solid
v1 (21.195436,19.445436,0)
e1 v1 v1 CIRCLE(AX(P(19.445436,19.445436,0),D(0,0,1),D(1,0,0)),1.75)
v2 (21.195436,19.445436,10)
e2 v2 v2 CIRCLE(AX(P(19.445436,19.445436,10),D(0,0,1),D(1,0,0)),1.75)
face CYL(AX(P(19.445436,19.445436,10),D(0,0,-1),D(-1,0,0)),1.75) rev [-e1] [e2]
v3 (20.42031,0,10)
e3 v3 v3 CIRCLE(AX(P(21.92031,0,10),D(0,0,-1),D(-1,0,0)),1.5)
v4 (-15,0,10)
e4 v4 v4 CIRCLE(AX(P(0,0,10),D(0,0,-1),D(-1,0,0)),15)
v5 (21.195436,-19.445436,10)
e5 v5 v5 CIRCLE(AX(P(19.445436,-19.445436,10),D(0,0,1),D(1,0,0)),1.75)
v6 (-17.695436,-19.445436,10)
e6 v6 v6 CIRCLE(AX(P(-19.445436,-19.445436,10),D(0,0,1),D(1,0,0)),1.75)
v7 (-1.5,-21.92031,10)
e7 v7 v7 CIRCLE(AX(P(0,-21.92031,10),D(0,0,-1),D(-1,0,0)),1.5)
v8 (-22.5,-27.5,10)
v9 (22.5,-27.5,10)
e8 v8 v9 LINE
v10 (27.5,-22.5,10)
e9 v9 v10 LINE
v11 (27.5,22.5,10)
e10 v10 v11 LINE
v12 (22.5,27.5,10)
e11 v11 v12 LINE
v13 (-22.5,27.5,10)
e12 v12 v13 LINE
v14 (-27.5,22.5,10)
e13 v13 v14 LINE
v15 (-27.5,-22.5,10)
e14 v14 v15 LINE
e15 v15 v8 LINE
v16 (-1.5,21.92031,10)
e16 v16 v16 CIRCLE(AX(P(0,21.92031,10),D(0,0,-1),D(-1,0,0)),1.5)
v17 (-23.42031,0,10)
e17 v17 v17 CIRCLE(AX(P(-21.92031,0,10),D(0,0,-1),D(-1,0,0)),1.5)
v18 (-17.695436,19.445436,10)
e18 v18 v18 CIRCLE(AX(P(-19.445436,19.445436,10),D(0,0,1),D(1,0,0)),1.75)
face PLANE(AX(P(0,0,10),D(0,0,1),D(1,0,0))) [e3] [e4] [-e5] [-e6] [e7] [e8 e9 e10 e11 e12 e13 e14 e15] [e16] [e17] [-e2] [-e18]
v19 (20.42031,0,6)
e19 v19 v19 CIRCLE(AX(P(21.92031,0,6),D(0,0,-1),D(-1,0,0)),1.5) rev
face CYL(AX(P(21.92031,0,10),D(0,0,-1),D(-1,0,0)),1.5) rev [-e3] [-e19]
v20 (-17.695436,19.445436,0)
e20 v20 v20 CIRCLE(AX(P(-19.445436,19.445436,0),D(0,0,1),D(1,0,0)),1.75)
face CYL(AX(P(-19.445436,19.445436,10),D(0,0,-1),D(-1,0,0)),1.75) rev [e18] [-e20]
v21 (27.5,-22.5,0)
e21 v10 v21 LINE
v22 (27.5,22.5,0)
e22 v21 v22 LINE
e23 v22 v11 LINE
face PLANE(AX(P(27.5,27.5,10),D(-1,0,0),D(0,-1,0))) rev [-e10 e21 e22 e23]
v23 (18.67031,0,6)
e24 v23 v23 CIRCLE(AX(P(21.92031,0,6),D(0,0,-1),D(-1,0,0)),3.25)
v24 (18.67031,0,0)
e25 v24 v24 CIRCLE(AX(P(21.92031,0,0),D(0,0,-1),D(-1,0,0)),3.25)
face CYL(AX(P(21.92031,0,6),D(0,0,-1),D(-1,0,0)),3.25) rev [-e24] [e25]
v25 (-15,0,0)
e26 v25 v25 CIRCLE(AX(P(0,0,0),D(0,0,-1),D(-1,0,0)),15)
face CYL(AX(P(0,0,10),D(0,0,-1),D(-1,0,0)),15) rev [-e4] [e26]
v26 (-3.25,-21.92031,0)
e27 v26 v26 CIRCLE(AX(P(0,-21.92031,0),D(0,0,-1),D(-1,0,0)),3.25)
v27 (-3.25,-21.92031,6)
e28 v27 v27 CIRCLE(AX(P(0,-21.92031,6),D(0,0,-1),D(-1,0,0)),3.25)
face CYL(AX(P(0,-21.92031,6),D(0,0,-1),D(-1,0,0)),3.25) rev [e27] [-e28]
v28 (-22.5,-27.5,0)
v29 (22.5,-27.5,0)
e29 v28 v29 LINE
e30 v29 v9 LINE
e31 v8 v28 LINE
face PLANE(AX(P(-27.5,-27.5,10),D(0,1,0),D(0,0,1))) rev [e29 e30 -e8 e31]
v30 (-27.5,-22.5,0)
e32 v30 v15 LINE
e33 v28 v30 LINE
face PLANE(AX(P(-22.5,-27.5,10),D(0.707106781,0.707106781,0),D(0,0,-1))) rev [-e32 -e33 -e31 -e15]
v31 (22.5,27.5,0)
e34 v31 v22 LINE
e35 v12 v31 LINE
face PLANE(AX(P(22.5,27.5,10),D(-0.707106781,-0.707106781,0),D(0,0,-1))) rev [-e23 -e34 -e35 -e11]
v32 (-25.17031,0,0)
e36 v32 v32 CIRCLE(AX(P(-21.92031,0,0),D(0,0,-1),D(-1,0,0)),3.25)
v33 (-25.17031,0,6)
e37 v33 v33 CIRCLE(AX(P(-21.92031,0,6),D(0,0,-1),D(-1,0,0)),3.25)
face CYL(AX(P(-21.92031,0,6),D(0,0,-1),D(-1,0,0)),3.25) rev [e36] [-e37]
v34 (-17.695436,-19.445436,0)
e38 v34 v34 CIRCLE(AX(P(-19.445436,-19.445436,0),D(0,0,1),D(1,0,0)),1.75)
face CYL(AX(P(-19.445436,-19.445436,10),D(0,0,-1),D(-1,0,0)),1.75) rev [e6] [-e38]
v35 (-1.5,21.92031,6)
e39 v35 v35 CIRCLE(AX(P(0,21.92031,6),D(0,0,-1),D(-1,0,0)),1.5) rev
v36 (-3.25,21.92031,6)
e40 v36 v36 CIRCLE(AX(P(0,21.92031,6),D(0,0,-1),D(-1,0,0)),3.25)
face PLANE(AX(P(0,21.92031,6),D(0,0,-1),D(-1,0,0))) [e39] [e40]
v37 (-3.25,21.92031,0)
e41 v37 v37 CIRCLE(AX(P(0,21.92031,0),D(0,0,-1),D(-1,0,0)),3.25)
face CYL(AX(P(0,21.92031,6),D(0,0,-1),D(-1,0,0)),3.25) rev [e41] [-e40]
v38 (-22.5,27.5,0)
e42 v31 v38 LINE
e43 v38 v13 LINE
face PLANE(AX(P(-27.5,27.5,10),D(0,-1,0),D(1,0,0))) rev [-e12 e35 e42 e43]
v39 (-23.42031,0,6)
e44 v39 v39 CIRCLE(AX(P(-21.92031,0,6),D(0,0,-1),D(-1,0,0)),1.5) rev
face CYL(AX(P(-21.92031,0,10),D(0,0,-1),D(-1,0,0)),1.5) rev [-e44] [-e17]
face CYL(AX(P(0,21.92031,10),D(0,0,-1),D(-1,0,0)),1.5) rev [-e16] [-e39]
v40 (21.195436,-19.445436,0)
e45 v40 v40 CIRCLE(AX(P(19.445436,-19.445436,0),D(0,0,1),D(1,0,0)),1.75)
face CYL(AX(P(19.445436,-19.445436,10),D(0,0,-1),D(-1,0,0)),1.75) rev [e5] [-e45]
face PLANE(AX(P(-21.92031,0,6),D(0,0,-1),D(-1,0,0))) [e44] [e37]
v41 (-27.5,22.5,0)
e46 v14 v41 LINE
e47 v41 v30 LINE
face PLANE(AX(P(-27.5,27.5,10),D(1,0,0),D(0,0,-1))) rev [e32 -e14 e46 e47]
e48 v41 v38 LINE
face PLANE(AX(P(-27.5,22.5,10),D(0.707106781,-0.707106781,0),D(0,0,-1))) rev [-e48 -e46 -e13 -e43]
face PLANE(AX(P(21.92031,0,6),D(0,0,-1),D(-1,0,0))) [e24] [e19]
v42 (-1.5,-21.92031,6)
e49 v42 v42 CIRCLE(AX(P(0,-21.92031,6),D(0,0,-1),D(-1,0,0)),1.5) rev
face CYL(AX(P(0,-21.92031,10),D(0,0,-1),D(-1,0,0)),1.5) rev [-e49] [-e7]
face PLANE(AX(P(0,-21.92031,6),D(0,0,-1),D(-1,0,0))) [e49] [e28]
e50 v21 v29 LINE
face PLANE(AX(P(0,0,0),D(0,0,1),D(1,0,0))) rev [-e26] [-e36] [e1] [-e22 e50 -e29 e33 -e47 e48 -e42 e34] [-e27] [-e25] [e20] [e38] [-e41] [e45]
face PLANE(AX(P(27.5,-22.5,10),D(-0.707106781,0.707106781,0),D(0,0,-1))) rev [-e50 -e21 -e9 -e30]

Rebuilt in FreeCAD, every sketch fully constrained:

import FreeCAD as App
import Part
import Sketcher

V = App.Vector


def edges_at(feature, points):
    """Names of the edges that pass closest to the given points."""
    edges = feature.Shape.Edges
    near = lambda p: min(range(len(edges)), key=lambda i: edges[i].distToShape(Part.Vertex(*p))[0])
    return sorted({f"Edge{near(p) + 1}" for p in points})


def add_polygon(sketch, points):
    """Adds a closed chain of lines whose ends are joined by coincident constraints."""
    first, n = sketch.GeometryCount, len(points)
    for a, b in zip(points, points[1:] + points[:1]):
        sketch.addGeometry(Part.LineSegment(App.Vector(*a, 0), App.Vector(*b, 0)), False)
    for i in range(n):
        sketch.addConstraint(Sketcher.Constraint("Coincident", first + i, 2, first + (i + 1) % n, 1))

doc = App.newDocument("Part")
body = doc.addObject("PartDesign::Body", "Body")

sketch1 = body.newObject("Sketcher::SketchObject", "Sketch")
sketch1.AttachmentSupport = (doc.getObject("XY_Plane"), [""])
sketch1.MapMode = "FlatFace"
add_polygon(sketch1, [(-27.5, 27.5), (-27.5, -27.5), (27.5, -27.5), (27.5, 27.5)])
sketch1.addGeometry(Part.Circle(V(-19.445436, -19.445436, 0), V(0, 0, 1), 1.75), False)
sketch1.addGeometry(Part.Circle(V(19.445436, -19.445436, 0), V(0, 0, 1), 1.75), False)
sketch1.addGeometry(Part.Circle(V(-19.445436, 19.445436, 0), V(0, 0, 1), 1.75), False)
sketch1.addGeometry(Part.Circle(V(19.445436, 19.445436, 0), V(0, 0, 1), 1.75), False)
sketch1.addConstraint(Sketcher.Constraint("Vertical", 0))
sketch1.addConstraint(Sketcher.Constraint("Horizontal", 1))
sketch1.addConstraint(Sketcher.Constraint("Vertical", 2))
sketch1.addConstraint(Sketcher.Constraint("Horizontal", 3))
sketch1.addConstraint(Sketcher.Constraint("Equal", 4, 5))
sketch1.addConstraint(Sketcher.Constraint("Equal", 5, 6))
sketch1.addConstraint(Sketcher.Constraint("Equal", 6, 7))
sketch1.addConstraint(Sketcher.Constraint("Symmetric", 5, 3, 6, 3, -1, 1))
sketch1.addConstraint(Sketcher.Constraint("Symmetric", 4, 3, 7, 3, -1, 1))
sketch1.addConstraint(Sketcher.Constraint("Symmetric", 0, 2, 2, 2, -1, 1))
sketch1.addConstraint(Sketcher.Constraint("Symmetric", 4, 3, 5, 3, -2))
sketch1.addConstraint(Sketcher.Constraint("Equal", 3, 0))
sketch1.addConstraint(Sketcher.Constraint("Diameter", 4, 3.5))
sketch1.addConstraint(Sketcher.Constraint("DistanceX", 1, 1, 1, 2, 55.0))
sketch1.addConstraint(Sketcher.Constraint("DistanceX", 4, 3, -1, 1, 19.445436))
sketch1.addConstraint(Sketcher.Constraint("DistanceY", 4, 3, -1, 1, 19.445436))
pad1 = body.newObject("PartDesign::Pad", "Pad")
pad1.Profile = sketch1
pad1.Length = 10

sketch2 = body.newObject("Sketcher::SketchObject", "Sketch001")
sketch2.AttachmentSupport = (doc.getObject("XY_Plane"), [""])
sketch2.MapMode = "FlatFace"
sketch2.addGeometry(Part.Circle(V(0, 0, 0), V(0, 0, 1), 15), False)
sketch2.addConstraint(Sketcher.Constraint("Coincident", 0, 3, -1, 1))
sketch2.addConstraint(Sketcher.Constraint("Diameter", 0, 30.0))
pocket1 = body.newObject("PartDesign::Pocket", "Pocket")
pocket1.Profile = sketch2
pocket1.Type = "ThroughAll"
pocket1.Reversed = True

sketch3 = body.newObject("Sketcher::SketchObject", "Sketch002")
sketch3.AttachmentSupport = (doc.getObject("XY_Plane"), [""])
sketch3.MapMode = "FlatFace"
sketch3.addGeometry(Part.Circle(V(0, 21.92031, 0), V(0, 0, 1), 1.5), False)
sketch3.addGeometry(Part.Circle(V(-21.92031, 0, 0), V(0, 0, 1), 1.5), False)
sketch3.addGeometry(Part.Circle(V(0, -21.92031, 0), V(0, 0, 1), 1.5), False)
sketch3.addGeometry(Part.Circle(V(21.92031, 0, 0), V(0, 0, 1), 1.5), False)
sketch3.addConstraint(Sketcher.Constraint("Equal", 0, 1))
sketch3.addConstraint(Sketcher.Constraint("Equal", 1, 2))
sketch3.addConstraint(Sketcher.Constraint("Equal", 2, 3))
sketch3.addConstraint(Sketcher.Constraint("Symmetric", 0, 3, 2, 3, -1, 1))
sketch3.addConstraint(Sketcher.Constraint("Symmetric", 1, 3, 3, 3, -1, 1))
sketch3.addConstraint(Sketcher.Constraint("PointOnObject", 0, 3, -2))
sketch3.addConstraint(Sketcher.Constraint("PointOnObject", 1, 3, -1))
sketch3.addConstraint(Sketcher.Constraint("Diameter", 0, 3.0))
sketch3.addConstraint(Sketcher.Constraint("DistanceY", -1, 1, 0, 3, 21.92031))
sketch3.addConstraint(Sketcher.Constraint("DistanceX", 1, 3, -1, 1, 21.92031))
pocket2 = body.newObject("PartDesign::Pocket", "Pocket001")
pocket2.Profile = sketch3
pocket2.Type = "ThroughAll"
pocket2.Reversed = True

sketch4 = body.newObject("Sketcher::SketchObject", "Sketch003")
sketch4.AttachmentSupport = (doc.getObject("XY_Plane"), [""])
sketch4.MapMode = "FlatFace"
sketch4.addGeometry(Part.Circle(V(0, 21.92031, 0), V(0, 0, 1), 3.25), False)
sketch4.addGeometry(Part.Circle(V(-21.92031, 0, 0), V(0, 0, 1), 3.25), False)
sketch4.addGeometry(Part.Circle(V(0, -21.92031, 0), V(0, 0, 1), 3.25), False)
sketch4.addGeometry(Part.Circle(V(21.92031, 0, 0), V(0, 0, 1), 3.25), False)
sketch4.addConstraint(Sketcher.Constraint("Equal", 0, 1))
sketch4.addConstraint(Sketcher.Constraint("Equal", 1, 2))
sketch4.addConstraint(Sketcher.Constraint("Equal", 2, 3))
sketch4.addConstraint(Sketcher.Constraint("Symmetric", 0, 3, 2, 3, -1, 1))
sketch4.addConstraint(Sketcher.Constraint("Symmetric", 1, 3, 3, 3, -1, 1))
sketch4.addConstraint(Sketcher.Constraint("PointOnObject", 0, 3, -2))
sketch4.addConstraint(Sketcher.Constraint("PointOnObject", 1, 3, -1))
sketch4.addConstraint(Sketcher.Constraint("Diameter", 0, 6.5))
sketch4.addConstraint(Sketcher.Constraint("DistanceY", -1, 1, 0, 3, 21.92031))
sketch4.addConstraint(Sketcher.Constraint("DistanceX", 1, 3, -1, 1, 21.92031))
pocket3 = body.newObject("PartDesign::Pocket", "Pocket002")
pocket3.Profile = sketch4
pocket3.Length = 6
pocket3.Reversed = True
doc.recompute()

chamfer = body.newObject("PartDesign::Chamfer", "Chamfer")
chamfer.Base = (pocket3, edges_at(pocket3, [
    (27.5, -27.5, 5),
    (-27.5, -27.5, 5),
    (-27.5, 27.5, 5),
    (27.5, 27.5, 5),
]))
chamfer.Size = 5

doc.recompute()
